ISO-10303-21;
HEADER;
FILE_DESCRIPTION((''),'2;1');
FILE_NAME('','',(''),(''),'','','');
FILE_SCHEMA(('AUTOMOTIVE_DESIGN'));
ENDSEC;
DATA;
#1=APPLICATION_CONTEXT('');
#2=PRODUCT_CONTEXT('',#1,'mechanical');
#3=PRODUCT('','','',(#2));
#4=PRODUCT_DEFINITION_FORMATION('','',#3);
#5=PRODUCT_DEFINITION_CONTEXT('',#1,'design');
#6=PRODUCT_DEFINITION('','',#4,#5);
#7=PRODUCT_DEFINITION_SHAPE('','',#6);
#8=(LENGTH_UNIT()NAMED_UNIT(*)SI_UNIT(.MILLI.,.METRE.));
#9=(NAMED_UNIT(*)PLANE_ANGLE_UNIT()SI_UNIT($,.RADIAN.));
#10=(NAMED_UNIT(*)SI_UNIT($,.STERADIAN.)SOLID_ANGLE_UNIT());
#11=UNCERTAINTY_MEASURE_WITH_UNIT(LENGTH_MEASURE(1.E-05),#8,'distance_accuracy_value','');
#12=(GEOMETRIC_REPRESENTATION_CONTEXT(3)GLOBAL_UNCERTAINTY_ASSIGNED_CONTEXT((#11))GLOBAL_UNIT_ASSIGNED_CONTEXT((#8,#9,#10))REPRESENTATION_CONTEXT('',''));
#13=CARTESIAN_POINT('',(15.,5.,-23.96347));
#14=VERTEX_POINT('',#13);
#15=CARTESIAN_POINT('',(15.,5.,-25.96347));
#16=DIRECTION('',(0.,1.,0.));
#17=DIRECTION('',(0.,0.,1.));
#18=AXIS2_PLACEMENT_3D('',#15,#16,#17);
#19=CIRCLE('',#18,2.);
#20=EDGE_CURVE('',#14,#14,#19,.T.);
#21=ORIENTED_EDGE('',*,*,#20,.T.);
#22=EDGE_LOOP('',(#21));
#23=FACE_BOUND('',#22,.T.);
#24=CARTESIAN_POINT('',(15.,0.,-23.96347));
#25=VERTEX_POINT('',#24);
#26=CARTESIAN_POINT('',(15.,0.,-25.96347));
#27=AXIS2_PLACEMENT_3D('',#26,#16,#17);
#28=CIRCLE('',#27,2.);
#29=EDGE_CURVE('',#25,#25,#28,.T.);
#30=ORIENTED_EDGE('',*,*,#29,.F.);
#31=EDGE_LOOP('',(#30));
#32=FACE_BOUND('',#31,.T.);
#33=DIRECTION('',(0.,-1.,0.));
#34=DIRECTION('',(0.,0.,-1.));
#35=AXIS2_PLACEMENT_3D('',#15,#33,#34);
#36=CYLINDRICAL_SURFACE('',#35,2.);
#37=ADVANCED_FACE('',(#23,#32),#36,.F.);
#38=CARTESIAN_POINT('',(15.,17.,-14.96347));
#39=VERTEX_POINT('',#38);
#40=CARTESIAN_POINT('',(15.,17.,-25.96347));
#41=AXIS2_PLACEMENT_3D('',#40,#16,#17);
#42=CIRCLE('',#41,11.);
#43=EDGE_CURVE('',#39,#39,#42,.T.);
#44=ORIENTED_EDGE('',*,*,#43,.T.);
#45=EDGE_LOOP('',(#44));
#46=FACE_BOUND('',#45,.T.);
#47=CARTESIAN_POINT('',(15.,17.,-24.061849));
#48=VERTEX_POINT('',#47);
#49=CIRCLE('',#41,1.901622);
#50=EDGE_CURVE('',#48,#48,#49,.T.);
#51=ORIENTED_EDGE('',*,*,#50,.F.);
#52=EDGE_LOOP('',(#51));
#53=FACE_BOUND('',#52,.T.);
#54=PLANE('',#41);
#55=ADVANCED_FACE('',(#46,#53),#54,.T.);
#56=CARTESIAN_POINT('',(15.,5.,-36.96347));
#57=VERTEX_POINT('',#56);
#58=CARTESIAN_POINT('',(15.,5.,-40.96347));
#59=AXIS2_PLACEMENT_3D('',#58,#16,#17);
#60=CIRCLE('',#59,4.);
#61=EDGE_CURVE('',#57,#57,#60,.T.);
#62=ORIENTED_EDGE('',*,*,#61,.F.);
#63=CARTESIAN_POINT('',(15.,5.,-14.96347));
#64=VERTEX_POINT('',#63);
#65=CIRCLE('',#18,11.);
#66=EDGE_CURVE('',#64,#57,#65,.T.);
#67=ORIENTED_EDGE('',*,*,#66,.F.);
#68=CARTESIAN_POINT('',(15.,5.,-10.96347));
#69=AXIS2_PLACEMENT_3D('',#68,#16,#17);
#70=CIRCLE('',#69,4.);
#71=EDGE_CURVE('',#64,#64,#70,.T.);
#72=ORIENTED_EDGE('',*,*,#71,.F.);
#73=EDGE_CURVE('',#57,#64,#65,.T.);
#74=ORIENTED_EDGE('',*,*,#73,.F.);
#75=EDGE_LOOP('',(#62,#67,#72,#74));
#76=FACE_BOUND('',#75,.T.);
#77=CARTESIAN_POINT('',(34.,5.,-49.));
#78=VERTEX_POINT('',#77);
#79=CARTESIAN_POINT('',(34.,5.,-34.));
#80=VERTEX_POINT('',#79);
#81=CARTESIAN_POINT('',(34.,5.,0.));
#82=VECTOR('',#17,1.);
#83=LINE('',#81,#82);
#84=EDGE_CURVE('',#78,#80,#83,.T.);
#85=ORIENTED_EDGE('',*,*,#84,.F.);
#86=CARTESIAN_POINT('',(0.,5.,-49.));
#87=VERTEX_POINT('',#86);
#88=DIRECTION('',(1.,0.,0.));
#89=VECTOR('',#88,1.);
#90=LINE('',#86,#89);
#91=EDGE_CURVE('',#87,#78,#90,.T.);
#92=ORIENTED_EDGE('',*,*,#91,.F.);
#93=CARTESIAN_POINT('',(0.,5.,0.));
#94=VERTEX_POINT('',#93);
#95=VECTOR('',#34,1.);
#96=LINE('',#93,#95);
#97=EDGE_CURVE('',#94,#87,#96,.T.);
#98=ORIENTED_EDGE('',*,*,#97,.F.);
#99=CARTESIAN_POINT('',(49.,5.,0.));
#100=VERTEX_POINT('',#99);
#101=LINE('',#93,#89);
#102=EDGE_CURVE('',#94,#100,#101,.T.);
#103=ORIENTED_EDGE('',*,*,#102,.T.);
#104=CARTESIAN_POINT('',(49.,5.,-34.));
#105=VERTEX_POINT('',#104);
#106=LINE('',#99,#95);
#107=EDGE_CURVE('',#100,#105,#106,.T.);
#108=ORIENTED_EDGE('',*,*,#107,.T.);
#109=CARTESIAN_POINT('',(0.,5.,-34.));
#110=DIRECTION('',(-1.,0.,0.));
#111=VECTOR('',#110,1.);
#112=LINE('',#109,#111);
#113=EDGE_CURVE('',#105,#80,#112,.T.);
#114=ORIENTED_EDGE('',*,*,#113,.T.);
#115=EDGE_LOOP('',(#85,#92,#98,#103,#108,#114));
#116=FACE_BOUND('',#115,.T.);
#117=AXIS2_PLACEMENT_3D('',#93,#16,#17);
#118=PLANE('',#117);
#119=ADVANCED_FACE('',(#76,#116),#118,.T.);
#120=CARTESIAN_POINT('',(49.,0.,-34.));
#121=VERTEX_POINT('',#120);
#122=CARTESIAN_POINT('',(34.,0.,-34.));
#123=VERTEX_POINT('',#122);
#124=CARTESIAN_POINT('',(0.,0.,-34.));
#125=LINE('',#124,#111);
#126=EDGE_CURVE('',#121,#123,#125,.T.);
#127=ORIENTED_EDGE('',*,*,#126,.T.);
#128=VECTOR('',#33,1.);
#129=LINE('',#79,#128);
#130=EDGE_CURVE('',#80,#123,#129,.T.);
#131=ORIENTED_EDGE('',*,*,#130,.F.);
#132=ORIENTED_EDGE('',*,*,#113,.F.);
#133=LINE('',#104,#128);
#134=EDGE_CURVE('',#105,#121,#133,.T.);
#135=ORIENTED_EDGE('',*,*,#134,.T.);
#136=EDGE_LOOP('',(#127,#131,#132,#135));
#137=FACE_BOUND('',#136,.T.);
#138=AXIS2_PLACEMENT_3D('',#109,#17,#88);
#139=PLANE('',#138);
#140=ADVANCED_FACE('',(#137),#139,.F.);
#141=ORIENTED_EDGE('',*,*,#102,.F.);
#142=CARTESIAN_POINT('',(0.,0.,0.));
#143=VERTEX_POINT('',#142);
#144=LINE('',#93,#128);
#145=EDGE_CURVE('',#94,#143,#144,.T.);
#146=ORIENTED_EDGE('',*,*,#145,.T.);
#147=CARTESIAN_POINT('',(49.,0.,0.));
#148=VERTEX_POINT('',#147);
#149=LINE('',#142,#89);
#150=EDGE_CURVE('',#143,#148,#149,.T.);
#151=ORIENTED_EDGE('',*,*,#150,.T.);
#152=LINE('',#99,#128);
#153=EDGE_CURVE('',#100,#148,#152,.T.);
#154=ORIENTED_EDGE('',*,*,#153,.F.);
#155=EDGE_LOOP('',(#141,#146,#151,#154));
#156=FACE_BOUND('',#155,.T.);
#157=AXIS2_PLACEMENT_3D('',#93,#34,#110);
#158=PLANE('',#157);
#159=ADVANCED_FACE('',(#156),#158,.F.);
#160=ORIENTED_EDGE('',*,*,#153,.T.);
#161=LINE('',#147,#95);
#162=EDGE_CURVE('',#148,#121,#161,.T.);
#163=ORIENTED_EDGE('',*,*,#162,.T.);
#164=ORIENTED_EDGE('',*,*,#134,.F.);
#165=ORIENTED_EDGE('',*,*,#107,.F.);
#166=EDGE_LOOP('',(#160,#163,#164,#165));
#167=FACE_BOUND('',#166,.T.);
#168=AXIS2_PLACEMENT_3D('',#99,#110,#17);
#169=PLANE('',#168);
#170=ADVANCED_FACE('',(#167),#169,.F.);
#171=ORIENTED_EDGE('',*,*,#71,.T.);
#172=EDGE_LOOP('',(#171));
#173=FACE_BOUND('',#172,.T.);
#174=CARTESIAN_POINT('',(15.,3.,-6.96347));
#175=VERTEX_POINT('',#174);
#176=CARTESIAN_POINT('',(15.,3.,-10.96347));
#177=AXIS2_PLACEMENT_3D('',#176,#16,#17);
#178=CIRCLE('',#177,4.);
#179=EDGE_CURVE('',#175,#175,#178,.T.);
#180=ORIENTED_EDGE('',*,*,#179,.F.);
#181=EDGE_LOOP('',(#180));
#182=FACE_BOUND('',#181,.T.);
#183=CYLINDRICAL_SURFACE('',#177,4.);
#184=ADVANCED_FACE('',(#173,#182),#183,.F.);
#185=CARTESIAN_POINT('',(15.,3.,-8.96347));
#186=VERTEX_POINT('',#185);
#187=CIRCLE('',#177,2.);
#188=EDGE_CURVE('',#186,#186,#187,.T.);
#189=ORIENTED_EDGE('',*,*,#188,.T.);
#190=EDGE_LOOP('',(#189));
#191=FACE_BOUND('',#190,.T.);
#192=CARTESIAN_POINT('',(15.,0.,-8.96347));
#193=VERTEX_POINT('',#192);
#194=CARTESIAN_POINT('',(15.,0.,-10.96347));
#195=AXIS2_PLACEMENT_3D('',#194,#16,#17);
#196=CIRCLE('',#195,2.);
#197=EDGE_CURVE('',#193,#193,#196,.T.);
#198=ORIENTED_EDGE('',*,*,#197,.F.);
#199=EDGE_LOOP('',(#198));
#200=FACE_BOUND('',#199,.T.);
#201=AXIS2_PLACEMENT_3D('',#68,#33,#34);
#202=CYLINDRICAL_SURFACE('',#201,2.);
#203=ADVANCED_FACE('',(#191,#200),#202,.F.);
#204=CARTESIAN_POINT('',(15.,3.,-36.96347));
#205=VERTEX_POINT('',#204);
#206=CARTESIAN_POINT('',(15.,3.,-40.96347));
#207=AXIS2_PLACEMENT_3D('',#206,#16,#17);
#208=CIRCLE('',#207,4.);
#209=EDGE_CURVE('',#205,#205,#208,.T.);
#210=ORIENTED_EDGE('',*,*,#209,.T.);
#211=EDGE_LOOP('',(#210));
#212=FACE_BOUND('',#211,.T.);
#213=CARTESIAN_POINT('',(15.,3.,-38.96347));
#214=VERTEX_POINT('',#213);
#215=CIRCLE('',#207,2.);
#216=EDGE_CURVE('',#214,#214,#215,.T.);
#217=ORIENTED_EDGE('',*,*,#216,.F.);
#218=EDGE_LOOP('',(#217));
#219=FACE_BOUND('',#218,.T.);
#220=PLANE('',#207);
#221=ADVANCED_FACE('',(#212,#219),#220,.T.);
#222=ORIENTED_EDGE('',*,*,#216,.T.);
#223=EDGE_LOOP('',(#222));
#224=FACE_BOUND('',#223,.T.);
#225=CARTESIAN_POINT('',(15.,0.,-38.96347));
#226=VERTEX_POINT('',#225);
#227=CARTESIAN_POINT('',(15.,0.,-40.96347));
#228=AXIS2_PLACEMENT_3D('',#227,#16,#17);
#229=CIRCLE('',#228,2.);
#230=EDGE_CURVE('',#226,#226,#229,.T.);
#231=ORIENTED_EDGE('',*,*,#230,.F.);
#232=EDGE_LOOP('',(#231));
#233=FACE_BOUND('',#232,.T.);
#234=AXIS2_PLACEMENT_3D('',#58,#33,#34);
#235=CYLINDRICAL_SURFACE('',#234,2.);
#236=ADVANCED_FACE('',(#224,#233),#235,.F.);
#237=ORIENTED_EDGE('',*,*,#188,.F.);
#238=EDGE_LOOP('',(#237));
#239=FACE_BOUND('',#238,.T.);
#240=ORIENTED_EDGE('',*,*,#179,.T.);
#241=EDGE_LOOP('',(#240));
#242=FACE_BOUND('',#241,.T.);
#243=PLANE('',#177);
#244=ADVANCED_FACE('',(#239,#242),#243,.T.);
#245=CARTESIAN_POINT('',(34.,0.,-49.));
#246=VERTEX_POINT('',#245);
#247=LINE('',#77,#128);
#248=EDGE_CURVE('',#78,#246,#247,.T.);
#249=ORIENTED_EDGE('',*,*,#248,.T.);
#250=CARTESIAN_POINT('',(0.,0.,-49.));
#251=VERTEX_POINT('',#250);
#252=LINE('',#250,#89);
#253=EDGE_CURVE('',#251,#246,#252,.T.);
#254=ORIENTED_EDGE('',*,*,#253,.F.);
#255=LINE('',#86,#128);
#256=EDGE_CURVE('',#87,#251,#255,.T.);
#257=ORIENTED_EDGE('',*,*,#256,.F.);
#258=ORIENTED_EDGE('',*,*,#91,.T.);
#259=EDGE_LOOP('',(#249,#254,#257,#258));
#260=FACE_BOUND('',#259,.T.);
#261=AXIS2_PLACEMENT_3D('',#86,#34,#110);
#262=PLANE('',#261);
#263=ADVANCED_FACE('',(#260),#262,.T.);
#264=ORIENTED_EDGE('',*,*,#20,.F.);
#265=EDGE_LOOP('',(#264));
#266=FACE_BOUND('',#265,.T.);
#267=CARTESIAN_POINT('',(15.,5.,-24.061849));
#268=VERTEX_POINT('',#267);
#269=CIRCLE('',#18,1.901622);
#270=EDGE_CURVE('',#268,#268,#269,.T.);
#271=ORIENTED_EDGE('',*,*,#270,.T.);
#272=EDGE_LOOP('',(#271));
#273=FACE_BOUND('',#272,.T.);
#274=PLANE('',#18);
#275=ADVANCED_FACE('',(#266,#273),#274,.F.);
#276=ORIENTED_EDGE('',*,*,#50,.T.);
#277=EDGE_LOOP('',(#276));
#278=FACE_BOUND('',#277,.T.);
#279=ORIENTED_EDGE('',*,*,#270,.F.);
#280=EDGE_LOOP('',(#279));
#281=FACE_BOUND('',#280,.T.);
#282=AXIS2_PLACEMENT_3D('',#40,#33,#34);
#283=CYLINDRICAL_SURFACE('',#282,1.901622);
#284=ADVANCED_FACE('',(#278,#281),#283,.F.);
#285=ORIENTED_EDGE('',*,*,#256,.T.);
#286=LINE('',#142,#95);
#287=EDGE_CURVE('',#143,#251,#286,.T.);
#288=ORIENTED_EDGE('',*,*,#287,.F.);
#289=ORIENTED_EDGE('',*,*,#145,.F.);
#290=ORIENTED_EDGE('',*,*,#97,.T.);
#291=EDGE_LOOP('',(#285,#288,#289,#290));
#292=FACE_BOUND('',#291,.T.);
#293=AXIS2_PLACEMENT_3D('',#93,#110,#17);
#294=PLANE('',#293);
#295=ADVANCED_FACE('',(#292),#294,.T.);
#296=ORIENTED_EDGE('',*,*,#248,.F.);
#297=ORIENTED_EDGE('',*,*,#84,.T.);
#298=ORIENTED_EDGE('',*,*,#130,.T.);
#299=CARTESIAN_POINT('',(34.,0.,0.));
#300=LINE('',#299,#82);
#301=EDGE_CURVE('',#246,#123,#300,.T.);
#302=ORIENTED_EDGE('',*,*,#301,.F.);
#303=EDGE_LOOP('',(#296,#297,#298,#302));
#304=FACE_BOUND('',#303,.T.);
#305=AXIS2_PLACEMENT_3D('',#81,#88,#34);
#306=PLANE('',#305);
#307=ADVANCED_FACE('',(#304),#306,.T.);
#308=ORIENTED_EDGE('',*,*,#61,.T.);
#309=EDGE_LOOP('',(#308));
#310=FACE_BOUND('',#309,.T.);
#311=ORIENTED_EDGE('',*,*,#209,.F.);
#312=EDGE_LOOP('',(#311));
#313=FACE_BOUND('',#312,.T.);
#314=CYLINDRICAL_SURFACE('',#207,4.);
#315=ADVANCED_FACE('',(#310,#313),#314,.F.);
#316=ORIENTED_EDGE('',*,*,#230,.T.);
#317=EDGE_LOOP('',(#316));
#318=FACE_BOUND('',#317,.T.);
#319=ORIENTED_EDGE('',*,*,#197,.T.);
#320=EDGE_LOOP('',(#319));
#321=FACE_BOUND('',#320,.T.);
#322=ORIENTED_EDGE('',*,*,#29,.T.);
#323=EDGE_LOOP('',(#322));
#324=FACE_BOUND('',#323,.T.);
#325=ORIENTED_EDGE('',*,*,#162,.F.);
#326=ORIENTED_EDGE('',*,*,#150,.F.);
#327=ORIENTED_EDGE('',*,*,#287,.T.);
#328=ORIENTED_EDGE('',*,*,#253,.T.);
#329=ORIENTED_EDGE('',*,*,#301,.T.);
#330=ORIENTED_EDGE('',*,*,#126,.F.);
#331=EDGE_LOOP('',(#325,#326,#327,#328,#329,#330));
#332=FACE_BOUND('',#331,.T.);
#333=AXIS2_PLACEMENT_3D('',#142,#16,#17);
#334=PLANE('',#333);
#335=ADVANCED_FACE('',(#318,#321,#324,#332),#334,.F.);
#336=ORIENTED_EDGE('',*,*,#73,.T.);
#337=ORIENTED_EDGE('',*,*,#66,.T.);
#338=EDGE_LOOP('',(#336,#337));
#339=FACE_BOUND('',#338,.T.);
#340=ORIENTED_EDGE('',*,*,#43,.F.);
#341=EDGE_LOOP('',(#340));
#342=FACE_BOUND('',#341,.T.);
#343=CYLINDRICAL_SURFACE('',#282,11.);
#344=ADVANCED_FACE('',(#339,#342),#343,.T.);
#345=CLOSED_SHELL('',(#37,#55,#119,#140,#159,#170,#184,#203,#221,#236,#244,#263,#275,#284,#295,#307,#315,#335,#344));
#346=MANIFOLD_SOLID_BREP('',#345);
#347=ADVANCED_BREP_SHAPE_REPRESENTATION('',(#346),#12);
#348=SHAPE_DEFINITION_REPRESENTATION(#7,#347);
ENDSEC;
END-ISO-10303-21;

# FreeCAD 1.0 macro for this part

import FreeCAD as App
import Part
import Sketcher

V = App.Vector
Q = App.Units.Quantity


def add_polygon(sketch, points):
    """Adds a closed chain of lines whose ends are joined by coincident constraints."""
    first, n = sketch.GeometryCount, len(points)
    for a, b in zip(points, points[1:] + points[:1]):
        sketch.addGeometry(Part.LineSegment(App.Vector(*a, 0), App.Vector(*b, 0)), False)
    for i in range(n):
        sketch.addConstraint(Sketcher.Constraint("Coincident", first + i, 2, first + (i + 1) % n, 1))

doc = App.newDocument("Part")
params = doc.addObject("Spreadsheet::Sheet", "Params")
for row, (alias, value) in enumerate([
    ("sketch1_diameter", "4 mm"),
    ("sketch1_width", "49 mm"),
    ("sketch1_width2", "15 mm"),
    ("pad1_length", "5 mm"),
    ("sketch2_diameter", "8 mm"),
    ("pocket1_length", "2 mm"),
    ("sketch3_diameter", "22 mm"),
    ("pad2_length", "12 mm"),
], start=1):
    params.set(f"A{row}", alias)
    params.set(f"B{row}", "=" + value)
    params.setAlias(f"B{row}", alias)

body = doc.addObject("PartDesign::Body", "Body")

# Sketch on XZ plane
sketch1 = doc.addObject("Sketcher::SketchObject", "Sketch")
body.addObject(sketch1)
sketch1.AttachmentSupport = (doc.XZ_Plane, [""])
sketch1.MapMode = "FlatFace"
add_polygon(sketch1, [(0, -49), (0, 0), (49, 0), (49, -34), (34, -34), (34, -49)])  # lines 0-5
sketch1.addGeometry(Part.Circle(V(15, -10.96347, 0), V(0, 0, 1), 2), False)  # 6
sketch1.addGeometry(Part.Circle(V(15, -25.96347, 0), V(0, 0, 1), 2), False)  # 7
sketch1.addGeometry(Part.Circle(V(15, -40.96347, 0), V(0, 0, 1), 2), False)  # 8
sketch1.addConstraint([
    Sketcher.Constraint("Vertical", 0),
    Sketcher.Constraint("Horizontal", 1),
    Sketcher.Constraint("Vertical", 2),
    Sketcher.Constraint("Horizontal", 3),
    Sketcher.Constraint("Vertical", 4),
    Sketcher.Constraint("Horizontal", 5),
    Sketcher.Constraint("Coincident", 0, 2, -1, 1),
    Sketcher.Constraint("Equal", 6, 7),
    Sketcher.Constraint("Equal", 7, 8),
    Sketcher.Constraint("Vertical", 6, 3, 7, 3),
    Sketcher.Constraint("Vertical", 7, 3, 8, 3),
    Sketcher.Constraint("Equal", 1, 0),
    Sketcher.Constraint("Equal", 5, 2),
    Sketcher.Constraint("Diameter", 6, Q("4 mm")),
    Sketcher.Constraint("DistanceX", 1, 1, 1, 2, Q("49 mm")),
    Sketcher.Constraint("DistanceX", 3, 2, 3, 1, Q("15 mm")),
    Sketcher.Constraint("DistanceX", -1, 1, 6, 3, Q("15 mm")),
    Sketcher.Constraint("DistanceY", 7, 3, 6, 3, Q("15 mm")),
    Sketcher.Constraint("DistanceY", 8, 3, 7, 3, Q("15 mm")),
    Sketcher.Constraint("DistanceY", 6, 3, -1, 1, Q("10.96347 mm")),
])
sketch1.setExpression("Constraints[19]", "Params.sketch1_diameter")
sketch1.setExpression("Constraints[20]", "Params.sketch1_width")
sketch1.setExpression("Constraints[21]", "Params.sketch1_width2")
pad1 = doc.addObject("PartDesign::Pad", "Pad")
body.addObject(pad1)
pad1.Profile = sketch1
pad1.setExpression("Length", "Params.pad1_length")
pad1.Reversed = True

# Sketch on XZ plane
sketch2 = doc.addObject("Sketcher::SketchObject", "Sketch001")
body.addObject(sketch2)
sketch2.AttachmentSupport = (doc.XZ_Plane, [""])
sketch2.MapMode = "FlatFace"
sketch2.AttachmentOffset = App.Placement(V(0, 0, -5), App.Rotation())
sketch2.addGeometry([
    Part.Circle(V(15, -40.96347, 0), V(0, 0, 1), 4),
    Part.Circle(V(15, -10.96347, 0), V(0, 0, 1), 4),
], False)
sketch2.addConstraint([
    Sketcher.Constraint("Equal", 0, 1),
    Sketcher.Constraint("Vertical", 0, 3, 1, 3),
    Sketcher.Constraint("Diameter", 0, Q("8 mm")),
    Sketcher.Constraint("DistanceX", -1, 1, 0, 3, Q("15 mm")),
    Sketcher.Constraint("DistanceY", 0, 3, 1, 3, Q("30 mm")),
    Sketcher.Constraint("DistanceY", 0, 3, -1, 1, Q("40.96347 mm")),
])
sketch2.setExpression("Constraints[2]", "Params.sketch2_diameter")
pocket1 = doc.addObject("PartDesign::Pocket", "Pocket")
body.addObject(pocket1)
pocket1.Profile = sketch2
pocket1.setExpression("Length", "Params.pocket1_length")
pocket1.Reversed = True

# Sketch on XZ plane
sketch3 = doc.addObject("Sketcher::SketchObject", "Sketch002")
body.addObject(sketch3)
sketch3.AttachmentSupport = (doc.XZ_Plane, [""])
sketch3.MapMode = "FlatFace"
sketch3.AttachmentOffset = App.Placement(V(0, 0, -5), App.Rotation())
sketch3.addGeometry([
    Part.Circle(V(15, -25.96347, 0), V(0, 0, 1), 11),
    Part.Circle(V(15, -25.96347, 0), V(0, 0, 1), 1.901622),
], False)
sketch3.addConstraint([
    Sketcher.Constraint("Coincident", 1, 3, 0, 3),
    Sketcher.Constraint("Diameter", 0, Q("22 mm")),
    Sketcher.Constraint("DistanceX", -1, 1, 0, 3, Q("15 mm")),
    Sketcher.Constraint("Diameter", 1, Q("3.803243 mm")),
    Sketcher.Constraint("DistanceY", 0, 3, -1, 1, Q("25.96347 mm")),
])
sketch3.setExpression("Constraints[1]", "Params.sketch3_diameter")
pad2 = doc.addObject("PartDesign::Pad", "Pad001")
body.addObject(pad2)
pad2.Profile = sketch3
pad2.setExpression("Length", "Params.pad2_length")
pad2.Reversed = True

doc.recompute()
